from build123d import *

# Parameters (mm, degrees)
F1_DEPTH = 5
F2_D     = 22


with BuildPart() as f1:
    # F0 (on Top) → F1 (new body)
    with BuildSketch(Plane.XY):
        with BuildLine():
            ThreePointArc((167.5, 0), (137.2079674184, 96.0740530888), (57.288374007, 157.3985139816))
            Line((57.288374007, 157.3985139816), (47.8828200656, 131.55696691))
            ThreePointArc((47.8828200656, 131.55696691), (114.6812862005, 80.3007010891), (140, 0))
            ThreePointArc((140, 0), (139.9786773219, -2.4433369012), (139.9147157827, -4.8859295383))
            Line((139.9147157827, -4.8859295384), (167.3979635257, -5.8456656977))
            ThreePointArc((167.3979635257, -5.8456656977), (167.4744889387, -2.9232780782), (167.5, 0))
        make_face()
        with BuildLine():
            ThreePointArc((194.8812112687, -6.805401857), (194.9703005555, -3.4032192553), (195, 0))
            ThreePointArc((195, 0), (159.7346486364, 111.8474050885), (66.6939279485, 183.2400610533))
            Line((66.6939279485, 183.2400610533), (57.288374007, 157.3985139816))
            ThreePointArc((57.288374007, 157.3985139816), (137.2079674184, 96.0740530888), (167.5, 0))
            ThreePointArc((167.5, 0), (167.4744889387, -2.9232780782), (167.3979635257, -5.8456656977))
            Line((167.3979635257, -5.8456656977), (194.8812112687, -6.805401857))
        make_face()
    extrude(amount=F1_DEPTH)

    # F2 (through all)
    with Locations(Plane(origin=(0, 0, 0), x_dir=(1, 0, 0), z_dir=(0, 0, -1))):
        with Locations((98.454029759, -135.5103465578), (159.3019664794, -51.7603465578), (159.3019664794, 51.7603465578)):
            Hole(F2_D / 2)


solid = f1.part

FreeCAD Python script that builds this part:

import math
import FreeCAD as App
import Part
import Sketcher

V = App.Vector
Q = App.Units.Quantity

doc = App.newDocument("Part")
params = doc.addObject("Spreadsheet::Sheet", "Params")
for row, (alias, value) in enumerate([
    ("sketch1_radius", "140 mm"),
    ("sketch1_radius2", "195 mm"),
    ("pad1_length", "5 mm"),
    ("sketch2_diameter", "22 mm"),
    ("hole_diameter", "22 mm"),
], start=1):
    params.set(f"A{row}", alias)
    params.set(f"B{row}", "=" + value)
    params.setAlias(f"B{row}", alias)

body = doc.addObject("PartDesign::Body", "Body")

sketch1 = body.newObject("Sketcher::SketchObject", "Sketch")
sketch1.AttachmentSupport = (doc.getObject("XY_Plane"), [""])
sketch1.MapMode = "FlatFace"
sketch1.addGeometry([
    Part.LineSegment(V(57, 157, 0), V(48, 132, 0)),
    Part.ArcOfCircle(Part.Circle(V(0, 0, 0), V(0, 0, 1), 140), math.radians(-2), math.radians(70)),
    Part.LineSegment(V(140, -5, 0), V(195, -7, 0)),
    Part.ArcOfCircle(Part.Circle(V(0, 0, 0), V(0, 0, 1), 195), math.radians(-2), math.radians(0)),
    Part.ArcOfCircle(Part.Circle(V(0, 0, 0), V(0, 0, 1), 195), math.radians(0), math.radians(70)),
    Part.LineSegment(V(67, 183, 0), V(57, 157, 0)),
], False)
sketch1.addConstraint([
    Sketcher.Constraint("Coincident", 0, 2, 1, 2),
    Sketcher.Constraint("Coincident", 1, 1, 2, 1),
    Sketcher.Constraint("Coincident", 2, 2, 3, 1),
    Sketcher.Constraint("Tangent", 3, 2, 4, 1),
    Sketcher.Constraint("Coincident", 4, 2, 5, 1),
    Sketcher.Constraint("Coincident", 5, 2, 0, 1),
    Sketcher.Constraint("Coincident", 1, 3, -1, 1),
    Sketcher.Constraint("Coincident", 3, 3, -1, 1),
    Sketcher.Constraint("Equal", 3, 4),
    Sketcher.Constraint("PointOnObject", 3, 2, -1),
    Sketcher.Constraint("Parallel", 0, 5),
    Sketcher.Constraint("Equal", 0, 5),
    Sketcher.Constraint("Radius", 1, 140.0),
    Sketcher.Constraint("Radius", 3, 195.0),
    Sketcher.Constraint("Angle", 0, Q("-110 deg")),
    Sketcher.Constraint("Angle", 2, Q("-2 deg")),
    Sketcher.Constraint("DistanceY", 2, 2, -1, 1, 6.805402),
    Sketcher.Constraint("DistanceX", -1, 1, 0, 2, 47.88282),
])
sketch1.setExpression("Constraints[12]", "Params.sketch1_radius")
sketch1.setExpression("Constraints[13]", "Params.sketch1_radius2")
pad1 = body.newObject("PartDesign::Pad", "Pad")
pad1.Profile = sketch1
pad1.setExpression("Length", "Params.pad1_length")

sketch2 = body.newObject("Sketcher::SketchObject", "Sketch001")
sketch2.AttachmentSupport = (doc.getObject("XY_Plane"), [""])
sketch2.MapMode = "FlatFace"
sketch2.addGeometry([
    Part.Circle(V(98, 136, 0), V(0, 0, 1), 11),
    Part.Circle(V(159, 52, 0), V(0, 0, 1), 11),
    Part.Circle(V(159, -52, 0), V(0, 0, 1), 11),
], False)
sketch2.addConstraint([
    Sketcher.Constraint("Equal", 0, 1),
    Sketcher.Constraint("Equal", 1, 2),
    Sketcher.Constraint("Symmetric", 1, 3, 2, 3, -1),
    Sketcher.Constraint("Diameter", 0, 22.0),
    Sketcher.Constraint("DistanceY", 1, 3, 0, 3, 83.75),
    Sketcher.Constraint("DistanceX", -1, 1, 0, 3, 98.45403),
    Sketcher.Constraint("DistanceY", -1, 1, 0, 3, 135.510347),
    Sketcher.Constraint("DistanceX", -1, 1, 1, 3, 159.301966),
])
sketch2.setExpression("Constraints[3]", "Params.sketch2_diameter")
doc.recompute()
hole = body.newObject("PartDesign::Hole", "Hole")
hole.Profile = sketch2
hole.ThreadType = "None"
hole.setExpression("Diameter", "Params.hole_diameter")
hole.DepthType = "ThroughAll"
hole.Reversed = True

doc.recompute()
